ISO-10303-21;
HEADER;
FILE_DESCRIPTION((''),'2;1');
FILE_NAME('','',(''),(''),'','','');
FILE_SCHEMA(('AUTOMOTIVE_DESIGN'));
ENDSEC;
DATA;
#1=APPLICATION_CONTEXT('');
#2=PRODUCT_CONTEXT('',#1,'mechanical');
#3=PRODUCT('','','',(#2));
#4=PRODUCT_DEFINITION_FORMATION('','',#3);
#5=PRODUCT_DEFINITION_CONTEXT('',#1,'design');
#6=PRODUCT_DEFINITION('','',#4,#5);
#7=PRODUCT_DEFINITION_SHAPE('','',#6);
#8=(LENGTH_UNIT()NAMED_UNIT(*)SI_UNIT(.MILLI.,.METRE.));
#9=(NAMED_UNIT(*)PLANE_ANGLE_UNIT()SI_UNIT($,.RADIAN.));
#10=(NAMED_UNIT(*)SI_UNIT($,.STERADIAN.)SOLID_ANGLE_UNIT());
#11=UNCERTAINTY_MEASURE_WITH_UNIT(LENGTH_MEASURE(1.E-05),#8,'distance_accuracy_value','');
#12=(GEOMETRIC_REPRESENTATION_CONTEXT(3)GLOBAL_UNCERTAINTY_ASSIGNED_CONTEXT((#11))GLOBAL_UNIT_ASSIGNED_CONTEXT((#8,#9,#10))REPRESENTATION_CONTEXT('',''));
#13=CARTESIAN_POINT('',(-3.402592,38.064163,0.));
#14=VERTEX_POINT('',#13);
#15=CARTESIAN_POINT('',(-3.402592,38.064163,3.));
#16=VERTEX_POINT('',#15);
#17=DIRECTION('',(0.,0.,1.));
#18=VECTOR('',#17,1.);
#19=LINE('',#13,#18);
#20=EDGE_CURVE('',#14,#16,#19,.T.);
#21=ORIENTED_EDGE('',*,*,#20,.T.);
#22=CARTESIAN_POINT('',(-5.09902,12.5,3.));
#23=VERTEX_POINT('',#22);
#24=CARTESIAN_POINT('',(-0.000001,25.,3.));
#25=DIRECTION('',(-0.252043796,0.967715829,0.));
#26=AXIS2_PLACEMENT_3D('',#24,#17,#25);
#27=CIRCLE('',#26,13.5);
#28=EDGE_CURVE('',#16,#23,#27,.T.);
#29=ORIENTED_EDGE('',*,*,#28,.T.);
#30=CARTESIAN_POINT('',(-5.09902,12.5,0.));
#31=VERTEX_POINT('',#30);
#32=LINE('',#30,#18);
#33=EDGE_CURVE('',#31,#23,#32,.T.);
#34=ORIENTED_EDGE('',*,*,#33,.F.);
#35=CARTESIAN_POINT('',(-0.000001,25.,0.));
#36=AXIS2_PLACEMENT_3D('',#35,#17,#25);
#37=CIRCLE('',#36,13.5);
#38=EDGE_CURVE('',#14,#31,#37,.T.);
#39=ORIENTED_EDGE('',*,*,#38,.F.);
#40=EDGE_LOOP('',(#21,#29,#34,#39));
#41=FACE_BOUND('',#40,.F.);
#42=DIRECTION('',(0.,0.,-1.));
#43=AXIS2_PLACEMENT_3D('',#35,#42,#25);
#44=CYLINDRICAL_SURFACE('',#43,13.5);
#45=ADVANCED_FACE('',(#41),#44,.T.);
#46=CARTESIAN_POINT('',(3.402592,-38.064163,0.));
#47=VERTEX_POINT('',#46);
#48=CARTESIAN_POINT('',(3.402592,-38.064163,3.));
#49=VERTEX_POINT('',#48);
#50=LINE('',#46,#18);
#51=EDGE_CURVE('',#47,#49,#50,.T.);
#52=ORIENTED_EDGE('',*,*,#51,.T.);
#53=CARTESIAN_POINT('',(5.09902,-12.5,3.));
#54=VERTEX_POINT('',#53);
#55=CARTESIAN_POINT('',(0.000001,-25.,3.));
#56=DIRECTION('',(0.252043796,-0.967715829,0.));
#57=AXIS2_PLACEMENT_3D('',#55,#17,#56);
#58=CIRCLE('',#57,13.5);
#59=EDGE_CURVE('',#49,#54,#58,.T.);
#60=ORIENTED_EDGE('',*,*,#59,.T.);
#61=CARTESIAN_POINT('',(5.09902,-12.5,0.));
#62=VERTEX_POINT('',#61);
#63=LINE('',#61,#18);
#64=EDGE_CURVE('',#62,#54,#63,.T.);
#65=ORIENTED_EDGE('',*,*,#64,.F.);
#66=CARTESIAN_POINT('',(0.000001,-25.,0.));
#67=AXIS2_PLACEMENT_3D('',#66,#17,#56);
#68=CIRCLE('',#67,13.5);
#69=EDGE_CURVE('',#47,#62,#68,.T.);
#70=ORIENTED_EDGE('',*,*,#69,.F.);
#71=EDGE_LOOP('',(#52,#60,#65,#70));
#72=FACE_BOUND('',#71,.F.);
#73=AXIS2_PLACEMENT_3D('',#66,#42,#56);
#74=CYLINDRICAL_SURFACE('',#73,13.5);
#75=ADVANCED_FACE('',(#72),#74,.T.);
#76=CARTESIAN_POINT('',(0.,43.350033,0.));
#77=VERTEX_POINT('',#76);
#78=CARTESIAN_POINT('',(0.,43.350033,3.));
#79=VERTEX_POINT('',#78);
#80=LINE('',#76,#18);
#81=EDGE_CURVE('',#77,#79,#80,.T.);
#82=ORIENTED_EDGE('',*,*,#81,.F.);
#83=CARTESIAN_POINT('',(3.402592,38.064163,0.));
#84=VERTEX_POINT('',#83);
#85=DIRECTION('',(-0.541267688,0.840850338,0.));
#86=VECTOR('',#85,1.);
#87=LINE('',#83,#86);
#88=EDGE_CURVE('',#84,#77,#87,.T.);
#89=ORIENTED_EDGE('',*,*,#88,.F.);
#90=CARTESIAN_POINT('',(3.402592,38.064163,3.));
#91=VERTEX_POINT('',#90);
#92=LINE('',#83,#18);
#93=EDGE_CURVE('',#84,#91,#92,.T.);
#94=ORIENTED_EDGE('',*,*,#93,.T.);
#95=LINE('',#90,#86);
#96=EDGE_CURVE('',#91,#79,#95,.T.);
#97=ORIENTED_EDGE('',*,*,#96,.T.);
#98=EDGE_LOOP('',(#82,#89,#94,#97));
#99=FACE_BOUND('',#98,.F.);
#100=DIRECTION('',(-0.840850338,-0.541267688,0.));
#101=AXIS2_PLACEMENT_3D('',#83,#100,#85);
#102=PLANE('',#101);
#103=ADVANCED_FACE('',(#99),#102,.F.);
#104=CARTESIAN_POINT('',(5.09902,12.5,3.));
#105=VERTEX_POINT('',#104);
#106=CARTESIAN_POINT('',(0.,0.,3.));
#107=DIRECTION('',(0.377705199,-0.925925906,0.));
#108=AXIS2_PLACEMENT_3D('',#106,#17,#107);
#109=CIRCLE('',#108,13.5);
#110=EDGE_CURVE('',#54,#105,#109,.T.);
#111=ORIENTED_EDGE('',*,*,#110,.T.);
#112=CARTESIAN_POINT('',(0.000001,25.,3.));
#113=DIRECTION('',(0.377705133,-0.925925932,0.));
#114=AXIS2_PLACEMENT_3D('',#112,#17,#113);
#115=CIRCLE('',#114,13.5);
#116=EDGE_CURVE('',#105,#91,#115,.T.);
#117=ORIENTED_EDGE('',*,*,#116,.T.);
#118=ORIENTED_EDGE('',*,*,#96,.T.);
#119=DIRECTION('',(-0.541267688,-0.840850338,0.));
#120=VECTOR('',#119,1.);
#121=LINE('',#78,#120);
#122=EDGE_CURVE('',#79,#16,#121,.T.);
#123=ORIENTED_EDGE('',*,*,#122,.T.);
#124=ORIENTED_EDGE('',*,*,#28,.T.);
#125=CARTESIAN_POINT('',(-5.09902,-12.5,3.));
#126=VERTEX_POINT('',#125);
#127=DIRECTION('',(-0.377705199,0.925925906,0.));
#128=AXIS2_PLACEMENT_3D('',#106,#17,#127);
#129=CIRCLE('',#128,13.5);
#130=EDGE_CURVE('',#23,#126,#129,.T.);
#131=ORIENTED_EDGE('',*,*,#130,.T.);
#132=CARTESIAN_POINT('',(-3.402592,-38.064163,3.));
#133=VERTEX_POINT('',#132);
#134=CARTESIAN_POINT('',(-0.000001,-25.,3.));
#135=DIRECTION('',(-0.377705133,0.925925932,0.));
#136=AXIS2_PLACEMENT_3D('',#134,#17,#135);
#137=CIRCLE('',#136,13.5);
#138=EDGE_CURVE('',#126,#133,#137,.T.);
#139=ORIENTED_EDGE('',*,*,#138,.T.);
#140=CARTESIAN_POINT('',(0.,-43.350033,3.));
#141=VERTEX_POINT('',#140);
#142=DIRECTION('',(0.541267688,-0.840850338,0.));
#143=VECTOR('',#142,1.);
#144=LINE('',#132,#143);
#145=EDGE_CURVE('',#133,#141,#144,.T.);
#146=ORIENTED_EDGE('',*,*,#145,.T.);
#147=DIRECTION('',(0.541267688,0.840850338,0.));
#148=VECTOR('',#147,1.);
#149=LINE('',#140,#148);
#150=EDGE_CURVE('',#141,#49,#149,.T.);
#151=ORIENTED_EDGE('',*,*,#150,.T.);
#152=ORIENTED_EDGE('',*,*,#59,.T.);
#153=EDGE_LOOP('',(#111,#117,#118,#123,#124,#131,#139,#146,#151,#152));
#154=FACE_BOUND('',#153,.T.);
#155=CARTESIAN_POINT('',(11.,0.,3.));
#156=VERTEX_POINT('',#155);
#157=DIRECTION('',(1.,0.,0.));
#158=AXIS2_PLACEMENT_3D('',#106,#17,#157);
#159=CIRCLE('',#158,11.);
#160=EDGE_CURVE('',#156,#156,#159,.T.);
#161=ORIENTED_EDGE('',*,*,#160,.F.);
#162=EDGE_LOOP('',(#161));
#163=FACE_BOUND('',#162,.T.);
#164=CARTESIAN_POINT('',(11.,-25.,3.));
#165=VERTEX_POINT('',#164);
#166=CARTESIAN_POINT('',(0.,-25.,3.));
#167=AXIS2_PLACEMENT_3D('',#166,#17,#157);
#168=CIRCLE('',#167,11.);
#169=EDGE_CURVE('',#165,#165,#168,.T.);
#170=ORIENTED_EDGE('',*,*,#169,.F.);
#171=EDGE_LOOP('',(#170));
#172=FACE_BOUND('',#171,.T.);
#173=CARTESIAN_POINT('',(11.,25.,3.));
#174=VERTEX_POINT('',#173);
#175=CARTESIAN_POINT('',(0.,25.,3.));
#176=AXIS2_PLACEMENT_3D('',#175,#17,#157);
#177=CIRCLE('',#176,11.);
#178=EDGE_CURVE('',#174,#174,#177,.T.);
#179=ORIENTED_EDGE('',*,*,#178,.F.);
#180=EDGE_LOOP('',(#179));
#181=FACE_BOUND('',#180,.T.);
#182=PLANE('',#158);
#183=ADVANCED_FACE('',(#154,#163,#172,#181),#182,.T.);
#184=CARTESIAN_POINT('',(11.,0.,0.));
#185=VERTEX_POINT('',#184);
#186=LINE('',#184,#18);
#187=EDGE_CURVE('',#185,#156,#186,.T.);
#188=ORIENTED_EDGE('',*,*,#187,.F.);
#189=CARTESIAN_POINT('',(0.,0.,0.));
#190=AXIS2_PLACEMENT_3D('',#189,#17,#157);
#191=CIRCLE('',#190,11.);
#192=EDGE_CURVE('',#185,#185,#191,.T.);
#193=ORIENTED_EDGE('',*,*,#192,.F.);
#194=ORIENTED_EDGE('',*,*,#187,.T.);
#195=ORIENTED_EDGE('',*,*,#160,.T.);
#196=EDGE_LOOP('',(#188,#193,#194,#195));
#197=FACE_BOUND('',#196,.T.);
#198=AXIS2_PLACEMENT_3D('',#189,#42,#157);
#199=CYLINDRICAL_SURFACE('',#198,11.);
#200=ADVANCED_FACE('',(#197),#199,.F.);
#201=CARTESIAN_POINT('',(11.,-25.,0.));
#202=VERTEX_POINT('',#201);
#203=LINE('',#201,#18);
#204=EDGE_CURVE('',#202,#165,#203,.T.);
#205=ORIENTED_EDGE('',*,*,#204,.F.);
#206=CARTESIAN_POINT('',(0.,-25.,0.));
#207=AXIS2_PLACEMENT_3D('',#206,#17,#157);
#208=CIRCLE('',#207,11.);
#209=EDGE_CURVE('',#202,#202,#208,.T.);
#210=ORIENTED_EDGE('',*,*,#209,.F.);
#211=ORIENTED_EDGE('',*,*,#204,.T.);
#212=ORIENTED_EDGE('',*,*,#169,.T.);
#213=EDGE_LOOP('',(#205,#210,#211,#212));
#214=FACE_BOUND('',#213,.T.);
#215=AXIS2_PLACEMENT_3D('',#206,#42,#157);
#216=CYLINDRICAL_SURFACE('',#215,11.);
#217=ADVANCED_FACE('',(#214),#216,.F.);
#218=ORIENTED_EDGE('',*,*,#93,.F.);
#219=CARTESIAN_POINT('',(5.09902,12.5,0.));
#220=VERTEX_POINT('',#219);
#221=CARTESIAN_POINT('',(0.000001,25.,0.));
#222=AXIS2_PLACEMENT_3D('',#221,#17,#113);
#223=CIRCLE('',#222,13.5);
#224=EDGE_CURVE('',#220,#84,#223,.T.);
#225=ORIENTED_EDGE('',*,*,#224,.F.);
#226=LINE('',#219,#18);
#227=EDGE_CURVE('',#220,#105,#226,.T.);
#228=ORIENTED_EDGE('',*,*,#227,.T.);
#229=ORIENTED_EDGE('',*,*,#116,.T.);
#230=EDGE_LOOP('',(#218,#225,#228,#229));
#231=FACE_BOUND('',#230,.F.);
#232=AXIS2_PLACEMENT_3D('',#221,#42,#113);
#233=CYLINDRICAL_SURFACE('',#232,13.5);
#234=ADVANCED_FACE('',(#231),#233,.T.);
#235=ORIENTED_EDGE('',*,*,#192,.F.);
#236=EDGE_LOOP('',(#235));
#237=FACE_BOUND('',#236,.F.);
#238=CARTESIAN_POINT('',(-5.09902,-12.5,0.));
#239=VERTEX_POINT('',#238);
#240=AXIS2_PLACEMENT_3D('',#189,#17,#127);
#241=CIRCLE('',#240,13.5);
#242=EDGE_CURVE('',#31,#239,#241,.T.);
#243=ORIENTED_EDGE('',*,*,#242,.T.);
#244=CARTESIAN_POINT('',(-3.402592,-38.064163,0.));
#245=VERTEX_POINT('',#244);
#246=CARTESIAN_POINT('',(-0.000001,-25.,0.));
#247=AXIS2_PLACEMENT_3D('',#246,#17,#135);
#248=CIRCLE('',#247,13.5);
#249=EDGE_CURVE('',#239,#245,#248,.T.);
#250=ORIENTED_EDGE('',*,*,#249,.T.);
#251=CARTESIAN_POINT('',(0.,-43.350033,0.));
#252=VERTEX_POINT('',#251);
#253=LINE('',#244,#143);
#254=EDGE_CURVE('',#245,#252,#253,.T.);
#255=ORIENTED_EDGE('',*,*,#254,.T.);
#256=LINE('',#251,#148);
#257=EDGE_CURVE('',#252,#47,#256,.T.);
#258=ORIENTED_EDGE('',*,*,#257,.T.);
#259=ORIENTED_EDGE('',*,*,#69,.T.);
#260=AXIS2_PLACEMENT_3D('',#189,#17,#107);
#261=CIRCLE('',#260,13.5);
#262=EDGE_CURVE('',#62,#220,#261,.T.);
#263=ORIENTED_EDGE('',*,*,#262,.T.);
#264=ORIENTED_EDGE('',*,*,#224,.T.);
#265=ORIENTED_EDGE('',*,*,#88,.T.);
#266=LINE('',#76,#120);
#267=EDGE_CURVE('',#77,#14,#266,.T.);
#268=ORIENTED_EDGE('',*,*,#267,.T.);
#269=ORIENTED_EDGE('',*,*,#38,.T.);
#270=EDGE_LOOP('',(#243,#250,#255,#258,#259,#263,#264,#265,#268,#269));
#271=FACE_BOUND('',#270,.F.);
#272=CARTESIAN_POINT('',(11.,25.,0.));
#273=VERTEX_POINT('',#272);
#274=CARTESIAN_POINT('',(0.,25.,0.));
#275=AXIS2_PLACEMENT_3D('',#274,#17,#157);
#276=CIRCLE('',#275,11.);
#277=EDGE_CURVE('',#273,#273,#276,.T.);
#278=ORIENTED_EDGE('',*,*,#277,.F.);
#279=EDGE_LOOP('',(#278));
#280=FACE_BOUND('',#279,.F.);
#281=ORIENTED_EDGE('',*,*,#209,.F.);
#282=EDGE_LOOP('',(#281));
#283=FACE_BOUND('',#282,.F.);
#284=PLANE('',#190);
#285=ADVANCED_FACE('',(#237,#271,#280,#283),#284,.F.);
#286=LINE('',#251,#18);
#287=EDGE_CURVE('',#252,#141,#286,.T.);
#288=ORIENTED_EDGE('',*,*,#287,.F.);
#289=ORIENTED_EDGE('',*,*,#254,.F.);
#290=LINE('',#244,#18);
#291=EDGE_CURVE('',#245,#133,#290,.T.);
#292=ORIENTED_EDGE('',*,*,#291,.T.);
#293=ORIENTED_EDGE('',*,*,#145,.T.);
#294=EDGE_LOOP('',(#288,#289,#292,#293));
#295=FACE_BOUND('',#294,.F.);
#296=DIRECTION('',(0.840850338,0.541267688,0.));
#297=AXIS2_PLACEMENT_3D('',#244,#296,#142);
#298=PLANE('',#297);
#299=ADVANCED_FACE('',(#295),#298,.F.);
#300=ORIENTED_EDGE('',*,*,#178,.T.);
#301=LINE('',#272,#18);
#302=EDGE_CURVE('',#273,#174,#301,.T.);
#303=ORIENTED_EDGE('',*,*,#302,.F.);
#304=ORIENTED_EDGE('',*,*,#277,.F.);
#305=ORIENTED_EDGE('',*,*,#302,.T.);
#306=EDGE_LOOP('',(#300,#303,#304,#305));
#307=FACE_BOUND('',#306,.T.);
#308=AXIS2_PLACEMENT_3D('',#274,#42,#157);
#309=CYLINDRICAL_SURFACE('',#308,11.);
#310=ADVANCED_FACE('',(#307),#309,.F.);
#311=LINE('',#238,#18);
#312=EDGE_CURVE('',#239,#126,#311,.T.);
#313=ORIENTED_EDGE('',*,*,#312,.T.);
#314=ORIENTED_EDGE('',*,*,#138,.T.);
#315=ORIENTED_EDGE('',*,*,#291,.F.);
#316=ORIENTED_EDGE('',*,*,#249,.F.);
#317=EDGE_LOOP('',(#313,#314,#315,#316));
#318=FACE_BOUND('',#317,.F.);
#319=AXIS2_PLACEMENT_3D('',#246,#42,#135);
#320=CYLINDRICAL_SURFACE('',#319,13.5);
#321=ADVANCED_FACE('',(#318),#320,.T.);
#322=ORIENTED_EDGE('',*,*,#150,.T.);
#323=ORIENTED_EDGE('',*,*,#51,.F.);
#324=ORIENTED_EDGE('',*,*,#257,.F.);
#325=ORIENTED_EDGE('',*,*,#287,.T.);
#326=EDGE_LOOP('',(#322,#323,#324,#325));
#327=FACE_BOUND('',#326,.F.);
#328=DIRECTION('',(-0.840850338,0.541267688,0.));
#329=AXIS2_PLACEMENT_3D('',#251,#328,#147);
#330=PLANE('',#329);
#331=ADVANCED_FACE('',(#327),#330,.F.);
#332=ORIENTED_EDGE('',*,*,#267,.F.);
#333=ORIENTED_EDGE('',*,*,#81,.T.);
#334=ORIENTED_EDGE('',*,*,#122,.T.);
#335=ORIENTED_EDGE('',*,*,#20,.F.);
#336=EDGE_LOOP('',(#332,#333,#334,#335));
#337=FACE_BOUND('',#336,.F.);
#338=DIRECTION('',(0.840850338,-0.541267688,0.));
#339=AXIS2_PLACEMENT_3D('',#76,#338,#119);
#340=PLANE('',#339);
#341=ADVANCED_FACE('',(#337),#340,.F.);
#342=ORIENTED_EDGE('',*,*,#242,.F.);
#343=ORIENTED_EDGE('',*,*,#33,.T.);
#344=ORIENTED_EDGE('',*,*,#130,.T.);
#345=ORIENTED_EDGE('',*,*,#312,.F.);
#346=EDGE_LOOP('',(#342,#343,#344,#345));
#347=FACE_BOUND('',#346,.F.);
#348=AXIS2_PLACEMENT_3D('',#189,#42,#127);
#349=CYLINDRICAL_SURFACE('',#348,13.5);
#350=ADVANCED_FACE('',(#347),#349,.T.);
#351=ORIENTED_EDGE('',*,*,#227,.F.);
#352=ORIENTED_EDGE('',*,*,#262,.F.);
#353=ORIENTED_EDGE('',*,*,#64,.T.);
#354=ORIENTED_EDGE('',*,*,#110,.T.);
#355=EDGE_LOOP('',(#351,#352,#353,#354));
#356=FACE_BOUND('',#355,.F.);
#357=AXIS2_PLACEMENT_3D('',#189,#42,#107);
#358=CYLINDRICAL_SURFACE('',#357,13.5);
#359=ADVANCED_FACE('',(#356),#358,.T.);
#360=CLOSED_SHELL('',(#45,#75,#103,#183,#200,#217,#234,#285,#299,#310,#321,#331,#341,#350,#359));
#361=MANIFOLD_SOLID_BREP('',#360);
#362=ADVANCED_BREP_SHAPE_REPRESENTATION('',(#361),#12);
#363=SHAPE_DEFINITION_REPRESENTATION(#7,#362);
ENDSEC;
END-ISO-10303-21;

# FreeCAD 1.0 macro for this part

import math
import FreeCAD as App
import Part
import Sketcher

doc = App.newDocument("Part")
body = doc.addObject("PartDesign::Body", "Body")

sketch1 = body.newObject("Sketcher::SketchObject", "Sketch")
sketch1.AttachmentSupport = (doc.getObject("XY_Plane"), [""])
sketch1.MapMode = "FlatFace"
sketch1.addGeometry(Part.ArcOfCircle(Part.Circle(App.Vector(0, 25, 0), App.Vector(0, 0, 1), 13), math.radians(105), math.radians(248)), False)
sketch1.addGeometry(Part.ArcOfCircle(Part.Circle(App.Vector(0, 0, 0), App.Vector(0, 0, 1), 14), math.radians(112), math.radians(248)), False)
sketch1.addGeometry(Part.ArcOfCircle(Part.Circle(App.Vector(0, -25, 0), App.Vector(0, 0, 1), 13), math.radians(112), math.radians(255)), False)
sketch1.addGeometry(Part.LineSegment(App.Vector(-3, -38, 0), App.Vector(0, -43, 0)), False)
sketch1.addGeometry(Part.LineSegment(App.Vector(0, -43, 0), App.Vector(3, -38, 0)), False)
sketch1.addGeometry(Part.ArcOfCircle(Part.Circle(App.Vector(0, -25, 0), App.Vector(0, 0, 1), 13), math.radians(-75), math.radians(68)), False)
sketch1.addGeometry(Part.ArcOfCircle(Part.Circle(App.Vector(0, 0, 0), App.Vector(0, 0, 1), 14), math.radians(-68), math.radians(68)), False)
sketch1.addGeometry(Part.ArcOfCircle(Part.Circle(App.Vector(0, 25, 0), App.Vector(0, 0, 1), 13), math.radians(-68), math.radians(75)), False)
sketch1.addGeometry(Part.LineSegment(App.Vector(3, 38, 0), App.Vector(0, 43, 0)), False)
sketch1.addGeometry(Part.LineSegment(App.Vector(0, 43, 0), App.Vector(-3, 38, 0)), False)
sketch1.addGeometry(Part.Circle(App.Vector(0, -25, 0), App.Vector(0, 0, 1), 11), False)
sketch1.addGeometry(Part.Circle(App.Vector(0, 0, 0), App.Vector(0, 0, 1), 11), False)
sketch1.addGeometry(Part.Circle(App.Vector(0, 25, 0), App.Vector(0, 0, 1), 11), False)
sketch1.addConstraint(Sketcher.Constraint("Coincident", 0, 2, 1, 1))
sketch1.addConstraint(Sketcher.Constraint("Coincident", 1, 2, 2, 1))
sketch1.addConstraint(Sketcher.Constraint("Coincident", 2, 2, 3, 1))
sketch1.addConstraint(Sketcher.Constraint("Coincident", 3, 2, 4, 1))
sketch1.addConstraint(Sketcher.Constraint("Coincident", 4, 2, 5, 1))
sketch1.addConstraint(Sketcher.Constraint("Coincident", 5, 2, 6, 1))
sketch1.addConstraint(Sketcher.Constraint("Coincident", 6, 2, 7, 1))
sketch1.addConstraint(Sketcher.Constraint("Coincident", 7, 2, 8, 1))
sketch1.addConstraint(Sketcher.Constraint("Coincident", 8, 2, 9, 1))
sketch1.addConstraint(Sketcher.Constraint("Coincident", 9, 2, 0, 1))
sketch1.addConstraint(Sketcher.Constraint("Coincident", 1, 3, -1, 1))
sketch1.addConstraint(Sketcher.Constraint("Coincident", 6, 3, -1, 1))
sketch1.addConstraint(Sketcher.Constraint("Coincident", 11, 3, -1, 1))
sketch1.addConstraint(Sketcher.Constraint("Coincident", 5, 3, 2, 3))
sketch1.addConstraint(Sketcher.Constraint("Coincident", 7, 3, 0, 3))
sketch1.addConstraint(Sketcher.Constraint("Coincident", 10, 3, 2, 3))
sketch1.addConstraint(Sketcher.Constraint("Coincident", 12, 3, 0, 3))
sketch1.addConstraint(Sketcher.Constraint("Equal", 0, 1))
sketch1.addConstraint(Sketcher.Constraint("Equal", 1, 2))
sketch1.addConstraint(Sketcher.Constraint("Equal", 2, 5))
sketch1.addConstraint(Sketcher.Constraint("Equal", 5, 6))
sketch1.addConstraint(Sketcher.Constraint("Equal", 6, 7))
sketch1.addConstraint(Sketcher.Constraint("Equal", 10, 11))
sketch1.addConstraint(Sketcher.Constraint("Equal", 11, 12))
sketch1.addConstraint(Sketcher.Constraint("Symmetric", 0, 3, 2, 3, -1, 1))
sketch1.addConstraint(Sketcher.Constraint("Symmetric", 3, 2, 8, 2, -1, 1))
sketch1.addConstraint(Sketcher.Constraint("Symmetric", 2, 2, 4, 2, -2))
sketch1.addConstraint(Sketcher.Constraint("PointOnObject", 3, 2, -2))
sketch1.addConstraint(Sketcher.Constraint("Parallel", 3, 8))
sketch1.addConstraint(Sketcher.Constraint("Parallel", 4, 9))
sketch1.addConstraint(Sketcher.Constraint("Diameter", 10, 22.0))
sketch1.addConstraint(Sketcher.Constraint("Radius", 0, 13.5))
sketch1.addConstraint(Sketcher.Constraint("DistanceY", -1, 1, 0, 3, 25.0))
sketch1.addConstraint(Sketcher.Constraint("Distance", 3, 6.286339))
sketch1.addConstraint(Sketcher.Constraint("DistanceX", 2, 2, -1, 1, 3.402592))
pad1 = body.newObject("PartDesign::Pad", "Pad")
pad1.Profile = sketch1
pad1.Length = 3

doc.recompute()
